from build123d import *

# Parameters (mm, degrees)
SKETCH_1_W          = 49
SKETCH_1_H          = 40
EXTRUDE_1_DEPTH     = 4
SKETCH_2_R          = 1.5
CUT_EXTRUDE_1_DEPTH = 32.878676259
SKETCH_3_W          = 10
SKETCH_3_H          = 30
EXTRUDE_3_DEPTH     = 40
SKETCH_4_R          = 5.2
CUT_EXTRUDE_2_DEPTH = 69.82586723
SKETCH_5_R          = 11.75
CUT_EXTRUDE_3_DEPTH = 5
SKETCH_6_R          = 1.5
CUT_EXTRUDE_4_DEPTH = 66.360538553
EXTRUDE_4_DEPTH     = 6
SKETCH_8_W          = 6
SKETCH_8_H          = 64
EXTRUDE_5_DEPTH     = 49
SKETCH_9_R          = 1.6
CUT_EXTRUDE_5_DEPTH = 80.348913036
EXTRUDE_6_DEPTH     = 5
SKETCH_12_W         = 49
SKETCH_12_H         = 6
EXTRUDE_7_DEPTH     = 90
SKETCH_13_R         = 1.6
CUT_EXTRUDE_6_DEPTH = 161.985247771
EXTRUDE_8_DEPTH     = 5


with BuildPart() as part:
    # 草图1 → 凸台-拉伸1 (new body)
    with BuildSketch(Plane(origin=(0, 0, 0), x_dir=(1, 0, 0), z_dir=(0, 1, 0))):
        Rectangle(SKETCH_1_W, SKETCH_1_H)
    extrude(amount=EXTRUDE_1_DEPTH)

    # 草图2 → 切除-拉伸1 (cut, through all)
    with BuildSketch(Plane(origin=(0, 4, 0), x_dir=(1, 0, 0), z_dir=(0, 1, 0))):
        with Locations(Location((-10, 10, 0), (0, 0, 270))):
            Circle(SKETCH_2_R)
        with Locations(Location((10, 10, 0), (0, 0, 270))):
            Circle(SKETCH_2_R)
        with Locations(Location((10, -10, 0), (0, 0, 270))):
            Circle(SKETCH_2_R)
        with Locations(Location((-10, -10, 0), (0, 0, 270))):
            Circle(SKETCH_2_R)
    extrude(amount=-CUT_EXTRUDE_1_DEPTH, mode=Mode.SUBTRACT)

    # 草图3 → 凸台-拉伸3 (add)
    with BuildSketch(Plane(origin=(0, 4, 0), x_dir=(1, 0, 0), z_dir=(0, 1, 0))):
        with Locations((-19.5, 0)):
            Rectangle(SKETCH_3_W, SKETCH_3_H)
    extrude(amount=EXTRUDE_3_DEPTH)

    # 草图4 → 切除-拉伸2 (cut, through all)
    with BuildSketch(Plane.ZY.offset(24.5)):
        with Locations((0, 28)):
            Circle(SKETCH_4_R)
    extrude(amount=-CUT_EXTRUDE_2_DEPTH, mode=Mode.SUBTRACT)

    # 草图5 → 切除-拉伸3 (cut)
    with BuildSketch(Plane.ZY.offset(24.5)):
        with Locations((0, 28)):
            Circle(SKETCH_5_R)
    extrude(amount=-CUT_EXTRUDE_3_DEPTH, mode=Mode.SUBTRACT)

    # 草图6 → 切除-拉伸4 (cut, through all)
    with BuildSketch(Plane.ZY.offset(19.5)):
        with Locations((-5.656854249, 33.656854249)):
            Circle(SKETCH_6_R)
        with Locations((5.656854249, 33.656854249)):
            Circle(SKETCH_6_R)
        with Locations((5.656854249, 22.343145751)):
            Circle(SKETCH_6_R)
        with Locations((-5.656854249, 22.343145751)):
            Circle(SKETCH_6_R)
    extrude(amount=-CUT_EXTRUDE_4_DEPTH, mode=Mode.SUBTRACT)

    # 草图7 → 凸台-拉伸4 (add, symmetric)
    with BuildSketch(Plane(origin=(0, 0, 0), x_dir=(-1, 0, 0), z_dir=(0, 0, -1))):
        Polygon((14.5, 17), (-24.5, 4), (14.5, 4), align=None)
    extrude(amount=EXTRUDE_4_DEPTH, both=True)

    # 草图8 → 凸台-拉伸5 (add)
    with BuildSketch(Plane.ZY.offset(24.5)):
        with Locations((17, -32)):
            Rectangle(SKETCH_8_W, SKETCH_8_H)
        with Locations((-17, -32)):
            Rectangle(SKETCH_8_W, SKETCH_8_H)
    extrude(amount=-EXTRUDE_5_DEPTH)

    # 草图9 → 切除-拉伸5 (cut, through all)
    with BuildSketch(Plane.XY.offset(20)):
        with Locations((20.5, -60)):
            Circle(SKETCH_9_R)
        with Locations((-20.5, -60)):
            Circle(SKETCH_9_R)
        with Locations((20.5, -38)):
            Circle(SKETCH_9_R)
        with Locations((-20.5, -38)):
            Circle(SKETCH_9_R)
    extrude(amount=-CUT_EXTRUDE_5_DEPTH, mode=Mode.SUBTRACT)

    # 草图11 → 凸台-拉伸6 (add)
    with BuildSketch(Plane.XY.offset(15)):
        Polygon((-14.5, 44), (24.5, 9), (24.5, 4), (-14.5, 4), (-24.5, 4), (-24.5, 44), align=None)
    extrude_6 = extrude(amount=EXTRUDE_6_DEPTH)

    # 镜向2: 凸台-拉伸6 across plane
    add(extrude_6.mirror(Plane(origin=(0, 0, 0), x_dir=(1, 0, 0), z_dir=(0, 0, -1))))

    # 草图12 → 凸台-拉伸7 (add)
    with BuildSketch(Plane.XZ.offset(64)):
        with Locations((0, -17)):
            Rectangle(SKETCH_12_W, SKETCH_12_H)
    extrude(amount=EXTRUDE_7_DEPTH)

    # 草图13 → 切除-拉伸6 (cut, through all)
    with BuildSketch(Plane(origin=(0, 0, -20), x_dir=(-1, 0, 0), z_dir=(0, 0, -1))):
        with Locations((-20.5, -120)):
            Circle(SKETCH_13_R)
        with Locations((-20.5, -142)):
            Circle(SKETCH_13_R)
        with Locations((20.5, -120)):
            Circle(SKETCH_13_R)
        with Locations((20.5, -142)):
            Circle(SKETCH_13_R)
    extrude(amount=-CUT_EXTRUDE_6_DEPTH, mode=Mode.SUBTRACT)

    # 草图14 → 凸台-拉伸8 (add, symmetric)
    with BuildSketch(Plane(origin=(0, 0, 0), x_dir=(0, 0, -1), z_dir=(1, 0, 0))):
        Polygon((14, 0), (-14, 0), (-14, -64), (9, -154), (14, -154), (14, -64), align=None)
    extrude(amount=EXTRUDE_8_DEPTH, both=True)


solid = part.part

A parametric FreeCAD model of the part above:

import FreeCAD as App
import Part
import Sketcher

V = App.Vector
Q = App.Units.Quantity


def add_polygon(sketch, points):
    """Adds a closed chain of lines whose ends are joined by coincident constraints."""
    first, n = sketch.GeometryCount, len(points)
    for a, b in zip(points, points[1:] + points[:1]):
        sketch.addGeometry(Part.LineSegment(App.Vector(*a, 0), App.Vector(*b, 0)), False)
    for i in range(n):
        sketch.addConstraint(Sketcher.Constraint("Coincident", first + i, 2, first + (i + 1) % n, 1))

doc = App.newDocument("Part")
body = doc.addObject("PartDesign::Body", "Body")

# Sketch on XZ plane
sketch1 = body.newObject("Sketcher::SketchObject", "Sketch")
sketch1.AttachmentSupport = (doc.getObject("XZ_Plane"), [""])
sketch1.MapMode = "FlatFace"
add_polygon(sketch1, [(-24, -20), (-24, 20), (24, 20), (24, -20)])  # lines 0-3
sketch1.addConstraint([
    Sketcher.Constraint("Vertical", 0),
    Sketcher.Constraint("Horizontal", 1),
    Sketcher.Constraint("Vertical", 2),
    Sketcher.Constraint("Horizontal", 3),
    Sketcher.Constraint("Symmetric", 0, 2, 2, 2, -1, 1),
    Sketcher.Constraint("DistanceX", 1, 1, 1, 2, Q("49 mm")),
    Sketcher.Constraint("DistanceY", 0, 1, 0, 2, Q("40 mm")),
])
pad1 = body.newObject("PartDesign::Pad", "Pad")
pad1.Profile = sketch1
pad1.Length = 4
pad1.Reversed = True

# Sketch on XZ plane
sketch2 = body.newObject("Sketcher::SketchObject", "Sketch001")
sketch2.AttachmentSupport = (doc.getObject("XZ_Plane"), [""])
sketch2.MapMode = "FlatFace"
sketch2.AttachmentOffset = App.Placement(V(0, 0, -4), App.Rotation())
sketch2.addGeometry([
    Part.Circle(V(-10, -10, 0), V(0, 0, 1), 1.5),
    Part.Circle(V(10, -10, 0), V(0, 0, 1), 1.5),
    Part.Circle(V(10, 10, 0), V(0, 0, 1), 1.5),
    Part.Circle(V(-10, 10, 0), V(0, 0, 1), 1.5),
], False)
sketch2.addConstraint([
    Sketcher.Constraint("Equal", 0, 1),
    Sketcher.Constraint("Equal", 1, 2),
    Sketcher.Constraint("Equal", 2, 3),
    Sketcher.Constraint("Symmetric", 0, 3, 2, 3, -1, 1),
    Sketcher.Constraint("Symmetric", 1, 3, 3, 3, -1, 1),
    Sketcher.Constraint("Symmetric", 0, 3, 1, 3, -2),
    Sketcher.Constraint("Diameter", 0, Q("3 mm")),
    Sketcher.Constraint("DistanceX", 0, 3, -1, 1, Q("10 mm")),
    Sketcher.Constraint("DistanceY", 0, 3, -1, 1, Q("10 mm")),
])
pocket1 = body.newObject("PartDesign::Pocket", "Pocket")
pocket1.Profile = sketch2
pocket1.Type = "ThroughAll"
pocket1.Reversed = True

# Sketch on XZ plane
sketch3 = body.newObject("Sketcher::SketchObject", "Sketch002")
sketch3.AttachmentSupport = (doc.getObject("XZ_Plane"), [""])
sketch3.MapMode = "FlatFace"
sketch3.AttachmentOffset = App.Placement(V(0, 0, -4), App.Rotation())
add_polygon(sketch3, [(-24, -15), (-24, 15), (-14, 15), (-14, -15)])  # lines 0-3
sketch3.addConstraint([
    Sketcher.Constraint("Vertical", 0),
    Sketcher.Constraint("Horizontal", 1),
    Sketcher.Constraint("Vertical", 2),
    Sketcher.Constraint("Horizontal", 3),
    Sketcher.Constraint("DistanceX", 1, 1, 1, 2, Q("10 mm")),
    Sketcher.Constraint("DistanceY", 0, 1, 0, 2, Q("30 mm")),
    Sketcher.Constraint("DistanceY", -1, 1, 0, 2, Q("15 mm")),
    Sketcher.Constraint("DistanceX", 0, 2, -1, 1, Q("24.5 mm")),
])
pad2 = body.newObject("PartDesign::Pad", "Pad001")
pad2.Profile = sketch3
pad2.Length = 40
pad2.Reversed = True

# Sketch on YZ plane
sketch4 = body.newObject("Sketcher::SketchObject", "Sketch003")
sketch4.AttachmentSupport = (doc.getObject("YZ_Plane"), [""])
sketch4.MapMode = "FlatFace"
sketch4.AttachmentOffset = App.Placement(V(0, 0, -24.5), App.Rotation())
sketch4.addGeometry(Part.Circle(V(28, 0, 0), V(0, 0, 1), 5), False)
sketch4.addConstraint([
    Sketcher.Constraint("PointOnObject", 0, 3, -1),
    Sketcher.Constraint("Diameter", 0, Q("10.4 mm")),
    Sketcher.Constraint("DistanceX", -1, 1, 0, 3, Q("28 mm")),
])
pocket2 = body.newObject("PartDesign::Pocket", "Pocket001")
pocket2.Profile = sketch4
pocket2.Type = "ThroughAll"
pocket2.Reversed = True

# Sketch on YZ plane
sketch5 = body.newObject("Sketcher::SketchObject", "Sketch004")
sketch5.AttachmentSupport = (doc.getObject("YZ_Plane"), [""])
sketch5.MapMode = "FlatFace"
sketch5.AttachmentOffset = App.Placement(V(0, 0, -24.5), App.Rotation())
sketch5.addGeometry(Part.Circle(V(28, 0, 0), V(0, 0, 1), 12), False)
sketch5.addConstraint([
    Sketcher.Constraint("PointOnObject", 0, 3, -1),
    Sketcher.Constraint("Diameter", 0, Q("23.5 mm")),
    Sketcher.Constraint("DistanceX", -1, 1, 0, 3, Q("28 mm")),
])
pocket3 = body.newObject("PartDesign::Pocket", "Pocket002")
pocket3.Profile = sketch5
pocket3.Length = 5
pocket3.Reversed = True

# Sketch on YZ plane
sketch6 = body.newObject("Sketcher::SketchObject", "Sketch005")
sketch6.AttachmentSupport = (doc.getObject("YZ_Plane"), [""])
sketch6.MapMode = "FlatFace"
sketch6.AttachmentOffset = App.Placement(V(0, 0, -19.5), App.Rotation())
sketch6.addGeometry([
    Part.Circle(V(33.7, -5.7, 0), V(0, 0, 1), 1.5),
    Part.Circle(V(33.7, 5.7, 0), V(0, 0, 1), 1.5),
    Part.Circle(V(22.3, 5.7, 0), V(0, 0, 1), 1.5),
    Part.Circle(V(22.3, -5.7, 0), V(0, 0, 1), 1.5),
], False)
sketch6.addConstraint([
    Sketcher.Constraint("Equal", 0, 1),
    Sketcher.Constraint("Equal", 1, 2),
    Sketcher.Constraint("Equal", 2, 3),
    Sketcher.Constraint("Symmetric", 0, 3, 1, 3, -1),
    Sketcher.Constraint("Symmetric", 2, 3, 3, 3, -1),
    Sketcher.Constraint("Horizontal", 1, 3, 2, 3),
    Sketcher.Constraint("Diameter", 0, Q("3 mm")),
    Sketcher.Constraint("DistanceY", 0, 3, 1, 3, Q("11.313708 mm")),
    Sketcher.Constraint("DistanceX", 2, 3, 1, 3, Q("11.313708 mm")),
    Sketcher.Constraint("DistanceX", -1, 1, 0, 3, Q("33.656854 mm")),
])
pocket4 = body.newObject("PartDesign::Pocket", "Pocket003")
pocket4.Profile = sketch6
pocket4.Type = "ThroughAll"
pocket4.Reversed = True

# Sketch on XY plane
sketch7 = body.newObject("Sketcher::SketchObject", "Sketch006")
sketch7.AttachmentSupport = (doc.getObject("XY_Plane"), [""])
sketch7.MapMode = "FlatFace"
add_polygon(sketch7, [(-14, 17), (24, 4), (-14, 4)])  # lines 0-2
sketch7.addConstraint([
    Sketcher.Constraint("Horizontal", 1),
    Sketcher.Constraint("Vertical", 2),
    Sketcher.Constraint("DistanceX", 1, 2, 1, 1, Q("39 mm")),
    Sketcher.Constraint("DistanceY", 2, 1, 2, 2, Q("13 mm")),
    Sketcher.Constraint("DistanceY", -1, 1, 0, 2, Q("4 mm")),
    Sketcher.Constraint("DistanceX", -1, 1, 0, 2, Q("24.5 mm")),
])
pad3 = body.newObject("PartDesign::Pad", "Pad002")
pad3.Profile = sketch7
pad3.Length = 12
pad3.Midplane = True

# Sketch on YZ plane
sketch8 = body.newObject("Sketcher::SketchObject", "Sketch007")
sketch8.AttachmentSupport = (doc.getObject("YZ_Plane"), [""])
sketch8.MapMode = "FlatFace"
sketch8.AttachmentOffset = App.Placement(V(0, 0, -24.5), App.Rotation())
add_polygon(sketch8, [(0, 14), (-64, 14), (-64, 20), (0, 20)])  # lines 0-3
add_polygon(sketch8, [(0, -20), (-64, -20), (-64, -14), (0, -14)])  # lines 4-7
sketch8.addConstraint([
    Sketcher.Constraint("Horizontal", 0),
    Sketcher.Constraint("Vertical", 1),
    Sketcher.Constraint("Horizontal", 2),
    Sketcher.Constraint("Vertical", 3),
    Sketcher.Constraint("Horizontal", 4),
    Sketcher.Constraint("Vertical", 5),
    Sketcher.Constraint("Horizontal", 6),
    Sketcher.Constraint("Vertical", 7),
    Sketcher.Constraint("Symmetric", 3, 2, 6, 2, -1, 1),
    Sketcher.Constraint("Symmetric", 1, 2, 4, 2, -1),
    Sketcher.Constraint("PointOnObject", 2, 2, -2),
    Sketcher.Constraint("DistanceX", 0, 2, 0, 1, Q("64 mm")),
    Sketcher.Constraint("DistanceY", 1, 1, 1, 2, Q("6 mm")),
    Sketcher.Constraint("DistanceY", -1, 1, 0, 2, Q("14 mm")),
])
pad4 = body.newObject("PartDesign::Pad", "Pad003")
pad4.Profile = sketch8
pad4.Length = 49

# Sketch on XY plane
sketch9 = body.newObject("Sketcher::SketchObject", "Sketch008")
sketch9.AttachmentSupport = (doc.getObject("XY_Plane"), [""])
sketch9.MapMode = "FlatFace"
sketch9.AttachmentOffset = App.Placement(V(0, 0, 20), App.Rotation())
sketch9.addGeometry([
    Part.Circle(V(20.5, -60, 0), V(0, 0, 1), 1.6),
    Part.Circle(V(-20.5, -60, 0), V(0, 0, 1), 1.6),
    Part.Circle(V(20.5, -38, 0), V(0, 0, 1), 1.6),
    Part.Circle(V(-20.5, -38, 0), V(0, 0, 1), 1.6),
], False)
sketch9.addConstraint([
    Sketcher.Constraint("Equal", 0, 1),
    Sketcher.Constraint("Equal", 1, 2),
    Sketcher.Constraint("Equal", 2, 3),
    Sketcher.Constraint("Symmetric", 0, 3, 1, 3, -2),
    Sketcher.Constraint("Symmetric", 2, 3, 3, 3, -2),
    Sketcher.Constraint("Vertical", 0, 3, 2, 3),
    Sketcher.Constraint("Diameter", 0, Q("3.2 mm")),
    Sketcher.Constraint("DistanceY", 0, 3, -1, 1, Q("60 mm")),
    Sketcher.Constraint("DistanceY", 2, 3, -1, 1, Q("38 mm")),
    Sketcher.Constraint("DistanceX", 1, 3, 0, 3, Q("41 mm")),
])
pocket5 = body.newObject("PartDesign::Pocket", "Pocket004")
pocket5.Profile = sketch9
pocket5.Type = "ThroughAll"

# Sketch on XY plane
sketch10 = body.newObject("Sketcher::SketchObject", "Sketch009")
sketch10.AttachmentSupport = (doc.getObject("XY_Plane"), [""])
sketch10.MapMode = "FlatFace"
sketch10.AttachmentOffset = App.Placement(V(0, 0, 15), App.Rotation())
add_polygon(sketch10, [(24, 9), (-14, 44), (-24, 44), (-24, 4), (24, 4)])  # lines 0-4
sketch10.addConstraint([
    Sketcher.Constraint("Horizontal", 1),
    Sketcher.Constraint("Vertical", 2),
    Sketcher.Constraint("Horizontal", 3),
    Sketcher.Constraint("Vertical", 4),
    Sketcher.Constraint("DistanceX", 1, 2, 1, 1, Q("10 mm")),
    Sketcher.Constraint("DistanceX", 3, 1, 3, 2, Q("49 mm")),
    Sketcher.Constraint("DistanceY", 2, 2, 2, 1, Q("40 mm")),
    Sketcher.Constraint("DistanceY", 4, 1, 4, 2, Q("5 mm")),
    Sketcher.Constraint("DistanceY", -1, 1, 0, 2, Q("44 mm")),
    Sketcher.Constraint("DistanceX", 0, 2, -1, 1, Q("14.5 mm")),
])
pad5 = body.newObject("PartDesign::Pad", "Pad004")
pad5.Profile = sketch10
pad5.Length = 5
doc.recompute()

mirrored = body.newObject("PartDesign::Mirrored", "Mirrored")
mirrored.Originals = [pad5]
mirrored.MirrorPlane = (doc.getObject("XY_Plane"), [""])
body.Tip = mirrored

# Sketch on XZ plane
sketch11 = body.newObject("Sketcher::SketchObject", "Sketch010")
sketch11.AttachmentSupport = (doc.getObject("XZ_Plane"), [""])
sketch11.MapMode = "FlatFace"
sketch11.AttachmentOffset = App.Placement(V(0, 0, 64), App.Rotation())
add_polygon(sketch11, [(-24, -14), (-24, -20), (24, -20), (24, -14)])  # lines 0-3
sketch11.addConstraint([
    Sketcher.Constraint("Vertical", 0),
    Sketcher.Constraint("Horizontal", 1),
    Sketcher.Constraint("Vertical", 2),
    Sketcher.Constraint("Horizontal", 3),
    Sketcher.Constraint("DistanceX", 1, 1, 1, 2, Q("49 mm")),
    Sketcher.Constraint("DistanceY", 0, 2, 0, 1, Q("6 mm")),
    Sketcher.Constraint("DistanceY", 0, 2, -1, 1, Q("20 mm")),
    Sketcher.Constraint("DistanceX", 0, 2, -1, 1, Q("24.5 mm")),
])
pad6 = body.newObject("PartDesign::Pad", "Pad005")
pad6.Profile = sketch11
pad6.Length = 90

# Sketch on XY plane
sketch12 = body.newObject("Sketcher::SketchObject", "Sketch011")
sketch12.AttachmentSupport = (doc.getObject("XY_Plane"), [""])
sketch12.MapMode = "FlatFace"
sketch12.AttachmentOffset = App.Placement(V(0, 0, -20), App.Rotation())
sketch12.addGeometry([
    Part.Circle(V(20.5, -120, 0), V(0, 0, 1), 1.6),
    Part.Circle(V(20.5, -142, 0), V(0, 0, 1), 1.6),
    Part.Circle(V(-20.5, -120, 0), V(0, 0, 1), 1.6),
    Part.Circle(V(-20.5, -142, 0), V(0, 0, 1), 1.6),
], False)
sketch12.addConstraint([
    Sketcher.Constraint("Equal", 0, 1),
    Sketcher.Constraint("Equal", 1, 2),
    Sketcher.Constraint("Equal", 2, 3),
    Sketcher.Constraint("Symmetric", 0, 3, 2, 3, -2),
    Sketcher.Constraint("Symmetric", 1, 3, 3, 3, -2),
    Sketcher.Constraint("Vertical", 0, 3, 1, 3),
    Sketcher.Constraint("Diameter", 0, Q("3.2 mm")),
    Sketcher.Constraint("DistanceY", 0, 3, -1, 1, Q("120 mm")),
    Sketcher.Constraint("DistanceY", 1, 3, -1, 1, Q("142 mm")),
    Sketcher.Constraint("DistanceX", 2, 3, 0, 3, Q("41 mm")),
])
pocket6 = body.newObject("PartDesign::Pocket", "Pocket005")
pocket6.Profile = sketch12
pocket6.Type = "ThroughAll"
pocket6.Reversed = True

# Sketch on YZ plane
sketch13 = body.newObject("Sketcher::SketchObject", "Sketch012")
sketch13.AttachmentSupport = (doc.getObject("YZ_Plane"), [""])
sketch13.MapMode = "FlatFace"
add_polygon(sketch13, [(0, -14), (0, 14), (-64, 14), (-154, -9), (-154, -14)])  # lines 0-4
sketch13.addConstraint([
    Sketcher.Constraint("Vertical", 0),
    Sketcher.Constraint("Horizontal", 1),
    Sketcher.Constraint("Vertical", 3),
    Sketcher.Constraint("Horizontal", 4),
    Sketcher.Constraint("Symmetric", 0, 2, 4, 2, -1, 1),
    Sketcher.Constraint("DistanceX", 1, 2, 1, 1, Q("64 mm")),
    Sketcher.Constraint("DistanceX", 4, 1, 4, 2, Q("154 mm")),
    Sketcher.Constraint("DistanceY", 0, 1, 0, 2, Q("28 mm")),
    Sketcher.Constraint("DistanceY", 3, 2, 3, 1, Q("5 mm")),
])
pad7 = body.newObject("PartDesign::Pad", "Pad006")
pad7.Profile = sketch13
pad7.Length = 10
pad7.Midplane = True

doc.recompute()
